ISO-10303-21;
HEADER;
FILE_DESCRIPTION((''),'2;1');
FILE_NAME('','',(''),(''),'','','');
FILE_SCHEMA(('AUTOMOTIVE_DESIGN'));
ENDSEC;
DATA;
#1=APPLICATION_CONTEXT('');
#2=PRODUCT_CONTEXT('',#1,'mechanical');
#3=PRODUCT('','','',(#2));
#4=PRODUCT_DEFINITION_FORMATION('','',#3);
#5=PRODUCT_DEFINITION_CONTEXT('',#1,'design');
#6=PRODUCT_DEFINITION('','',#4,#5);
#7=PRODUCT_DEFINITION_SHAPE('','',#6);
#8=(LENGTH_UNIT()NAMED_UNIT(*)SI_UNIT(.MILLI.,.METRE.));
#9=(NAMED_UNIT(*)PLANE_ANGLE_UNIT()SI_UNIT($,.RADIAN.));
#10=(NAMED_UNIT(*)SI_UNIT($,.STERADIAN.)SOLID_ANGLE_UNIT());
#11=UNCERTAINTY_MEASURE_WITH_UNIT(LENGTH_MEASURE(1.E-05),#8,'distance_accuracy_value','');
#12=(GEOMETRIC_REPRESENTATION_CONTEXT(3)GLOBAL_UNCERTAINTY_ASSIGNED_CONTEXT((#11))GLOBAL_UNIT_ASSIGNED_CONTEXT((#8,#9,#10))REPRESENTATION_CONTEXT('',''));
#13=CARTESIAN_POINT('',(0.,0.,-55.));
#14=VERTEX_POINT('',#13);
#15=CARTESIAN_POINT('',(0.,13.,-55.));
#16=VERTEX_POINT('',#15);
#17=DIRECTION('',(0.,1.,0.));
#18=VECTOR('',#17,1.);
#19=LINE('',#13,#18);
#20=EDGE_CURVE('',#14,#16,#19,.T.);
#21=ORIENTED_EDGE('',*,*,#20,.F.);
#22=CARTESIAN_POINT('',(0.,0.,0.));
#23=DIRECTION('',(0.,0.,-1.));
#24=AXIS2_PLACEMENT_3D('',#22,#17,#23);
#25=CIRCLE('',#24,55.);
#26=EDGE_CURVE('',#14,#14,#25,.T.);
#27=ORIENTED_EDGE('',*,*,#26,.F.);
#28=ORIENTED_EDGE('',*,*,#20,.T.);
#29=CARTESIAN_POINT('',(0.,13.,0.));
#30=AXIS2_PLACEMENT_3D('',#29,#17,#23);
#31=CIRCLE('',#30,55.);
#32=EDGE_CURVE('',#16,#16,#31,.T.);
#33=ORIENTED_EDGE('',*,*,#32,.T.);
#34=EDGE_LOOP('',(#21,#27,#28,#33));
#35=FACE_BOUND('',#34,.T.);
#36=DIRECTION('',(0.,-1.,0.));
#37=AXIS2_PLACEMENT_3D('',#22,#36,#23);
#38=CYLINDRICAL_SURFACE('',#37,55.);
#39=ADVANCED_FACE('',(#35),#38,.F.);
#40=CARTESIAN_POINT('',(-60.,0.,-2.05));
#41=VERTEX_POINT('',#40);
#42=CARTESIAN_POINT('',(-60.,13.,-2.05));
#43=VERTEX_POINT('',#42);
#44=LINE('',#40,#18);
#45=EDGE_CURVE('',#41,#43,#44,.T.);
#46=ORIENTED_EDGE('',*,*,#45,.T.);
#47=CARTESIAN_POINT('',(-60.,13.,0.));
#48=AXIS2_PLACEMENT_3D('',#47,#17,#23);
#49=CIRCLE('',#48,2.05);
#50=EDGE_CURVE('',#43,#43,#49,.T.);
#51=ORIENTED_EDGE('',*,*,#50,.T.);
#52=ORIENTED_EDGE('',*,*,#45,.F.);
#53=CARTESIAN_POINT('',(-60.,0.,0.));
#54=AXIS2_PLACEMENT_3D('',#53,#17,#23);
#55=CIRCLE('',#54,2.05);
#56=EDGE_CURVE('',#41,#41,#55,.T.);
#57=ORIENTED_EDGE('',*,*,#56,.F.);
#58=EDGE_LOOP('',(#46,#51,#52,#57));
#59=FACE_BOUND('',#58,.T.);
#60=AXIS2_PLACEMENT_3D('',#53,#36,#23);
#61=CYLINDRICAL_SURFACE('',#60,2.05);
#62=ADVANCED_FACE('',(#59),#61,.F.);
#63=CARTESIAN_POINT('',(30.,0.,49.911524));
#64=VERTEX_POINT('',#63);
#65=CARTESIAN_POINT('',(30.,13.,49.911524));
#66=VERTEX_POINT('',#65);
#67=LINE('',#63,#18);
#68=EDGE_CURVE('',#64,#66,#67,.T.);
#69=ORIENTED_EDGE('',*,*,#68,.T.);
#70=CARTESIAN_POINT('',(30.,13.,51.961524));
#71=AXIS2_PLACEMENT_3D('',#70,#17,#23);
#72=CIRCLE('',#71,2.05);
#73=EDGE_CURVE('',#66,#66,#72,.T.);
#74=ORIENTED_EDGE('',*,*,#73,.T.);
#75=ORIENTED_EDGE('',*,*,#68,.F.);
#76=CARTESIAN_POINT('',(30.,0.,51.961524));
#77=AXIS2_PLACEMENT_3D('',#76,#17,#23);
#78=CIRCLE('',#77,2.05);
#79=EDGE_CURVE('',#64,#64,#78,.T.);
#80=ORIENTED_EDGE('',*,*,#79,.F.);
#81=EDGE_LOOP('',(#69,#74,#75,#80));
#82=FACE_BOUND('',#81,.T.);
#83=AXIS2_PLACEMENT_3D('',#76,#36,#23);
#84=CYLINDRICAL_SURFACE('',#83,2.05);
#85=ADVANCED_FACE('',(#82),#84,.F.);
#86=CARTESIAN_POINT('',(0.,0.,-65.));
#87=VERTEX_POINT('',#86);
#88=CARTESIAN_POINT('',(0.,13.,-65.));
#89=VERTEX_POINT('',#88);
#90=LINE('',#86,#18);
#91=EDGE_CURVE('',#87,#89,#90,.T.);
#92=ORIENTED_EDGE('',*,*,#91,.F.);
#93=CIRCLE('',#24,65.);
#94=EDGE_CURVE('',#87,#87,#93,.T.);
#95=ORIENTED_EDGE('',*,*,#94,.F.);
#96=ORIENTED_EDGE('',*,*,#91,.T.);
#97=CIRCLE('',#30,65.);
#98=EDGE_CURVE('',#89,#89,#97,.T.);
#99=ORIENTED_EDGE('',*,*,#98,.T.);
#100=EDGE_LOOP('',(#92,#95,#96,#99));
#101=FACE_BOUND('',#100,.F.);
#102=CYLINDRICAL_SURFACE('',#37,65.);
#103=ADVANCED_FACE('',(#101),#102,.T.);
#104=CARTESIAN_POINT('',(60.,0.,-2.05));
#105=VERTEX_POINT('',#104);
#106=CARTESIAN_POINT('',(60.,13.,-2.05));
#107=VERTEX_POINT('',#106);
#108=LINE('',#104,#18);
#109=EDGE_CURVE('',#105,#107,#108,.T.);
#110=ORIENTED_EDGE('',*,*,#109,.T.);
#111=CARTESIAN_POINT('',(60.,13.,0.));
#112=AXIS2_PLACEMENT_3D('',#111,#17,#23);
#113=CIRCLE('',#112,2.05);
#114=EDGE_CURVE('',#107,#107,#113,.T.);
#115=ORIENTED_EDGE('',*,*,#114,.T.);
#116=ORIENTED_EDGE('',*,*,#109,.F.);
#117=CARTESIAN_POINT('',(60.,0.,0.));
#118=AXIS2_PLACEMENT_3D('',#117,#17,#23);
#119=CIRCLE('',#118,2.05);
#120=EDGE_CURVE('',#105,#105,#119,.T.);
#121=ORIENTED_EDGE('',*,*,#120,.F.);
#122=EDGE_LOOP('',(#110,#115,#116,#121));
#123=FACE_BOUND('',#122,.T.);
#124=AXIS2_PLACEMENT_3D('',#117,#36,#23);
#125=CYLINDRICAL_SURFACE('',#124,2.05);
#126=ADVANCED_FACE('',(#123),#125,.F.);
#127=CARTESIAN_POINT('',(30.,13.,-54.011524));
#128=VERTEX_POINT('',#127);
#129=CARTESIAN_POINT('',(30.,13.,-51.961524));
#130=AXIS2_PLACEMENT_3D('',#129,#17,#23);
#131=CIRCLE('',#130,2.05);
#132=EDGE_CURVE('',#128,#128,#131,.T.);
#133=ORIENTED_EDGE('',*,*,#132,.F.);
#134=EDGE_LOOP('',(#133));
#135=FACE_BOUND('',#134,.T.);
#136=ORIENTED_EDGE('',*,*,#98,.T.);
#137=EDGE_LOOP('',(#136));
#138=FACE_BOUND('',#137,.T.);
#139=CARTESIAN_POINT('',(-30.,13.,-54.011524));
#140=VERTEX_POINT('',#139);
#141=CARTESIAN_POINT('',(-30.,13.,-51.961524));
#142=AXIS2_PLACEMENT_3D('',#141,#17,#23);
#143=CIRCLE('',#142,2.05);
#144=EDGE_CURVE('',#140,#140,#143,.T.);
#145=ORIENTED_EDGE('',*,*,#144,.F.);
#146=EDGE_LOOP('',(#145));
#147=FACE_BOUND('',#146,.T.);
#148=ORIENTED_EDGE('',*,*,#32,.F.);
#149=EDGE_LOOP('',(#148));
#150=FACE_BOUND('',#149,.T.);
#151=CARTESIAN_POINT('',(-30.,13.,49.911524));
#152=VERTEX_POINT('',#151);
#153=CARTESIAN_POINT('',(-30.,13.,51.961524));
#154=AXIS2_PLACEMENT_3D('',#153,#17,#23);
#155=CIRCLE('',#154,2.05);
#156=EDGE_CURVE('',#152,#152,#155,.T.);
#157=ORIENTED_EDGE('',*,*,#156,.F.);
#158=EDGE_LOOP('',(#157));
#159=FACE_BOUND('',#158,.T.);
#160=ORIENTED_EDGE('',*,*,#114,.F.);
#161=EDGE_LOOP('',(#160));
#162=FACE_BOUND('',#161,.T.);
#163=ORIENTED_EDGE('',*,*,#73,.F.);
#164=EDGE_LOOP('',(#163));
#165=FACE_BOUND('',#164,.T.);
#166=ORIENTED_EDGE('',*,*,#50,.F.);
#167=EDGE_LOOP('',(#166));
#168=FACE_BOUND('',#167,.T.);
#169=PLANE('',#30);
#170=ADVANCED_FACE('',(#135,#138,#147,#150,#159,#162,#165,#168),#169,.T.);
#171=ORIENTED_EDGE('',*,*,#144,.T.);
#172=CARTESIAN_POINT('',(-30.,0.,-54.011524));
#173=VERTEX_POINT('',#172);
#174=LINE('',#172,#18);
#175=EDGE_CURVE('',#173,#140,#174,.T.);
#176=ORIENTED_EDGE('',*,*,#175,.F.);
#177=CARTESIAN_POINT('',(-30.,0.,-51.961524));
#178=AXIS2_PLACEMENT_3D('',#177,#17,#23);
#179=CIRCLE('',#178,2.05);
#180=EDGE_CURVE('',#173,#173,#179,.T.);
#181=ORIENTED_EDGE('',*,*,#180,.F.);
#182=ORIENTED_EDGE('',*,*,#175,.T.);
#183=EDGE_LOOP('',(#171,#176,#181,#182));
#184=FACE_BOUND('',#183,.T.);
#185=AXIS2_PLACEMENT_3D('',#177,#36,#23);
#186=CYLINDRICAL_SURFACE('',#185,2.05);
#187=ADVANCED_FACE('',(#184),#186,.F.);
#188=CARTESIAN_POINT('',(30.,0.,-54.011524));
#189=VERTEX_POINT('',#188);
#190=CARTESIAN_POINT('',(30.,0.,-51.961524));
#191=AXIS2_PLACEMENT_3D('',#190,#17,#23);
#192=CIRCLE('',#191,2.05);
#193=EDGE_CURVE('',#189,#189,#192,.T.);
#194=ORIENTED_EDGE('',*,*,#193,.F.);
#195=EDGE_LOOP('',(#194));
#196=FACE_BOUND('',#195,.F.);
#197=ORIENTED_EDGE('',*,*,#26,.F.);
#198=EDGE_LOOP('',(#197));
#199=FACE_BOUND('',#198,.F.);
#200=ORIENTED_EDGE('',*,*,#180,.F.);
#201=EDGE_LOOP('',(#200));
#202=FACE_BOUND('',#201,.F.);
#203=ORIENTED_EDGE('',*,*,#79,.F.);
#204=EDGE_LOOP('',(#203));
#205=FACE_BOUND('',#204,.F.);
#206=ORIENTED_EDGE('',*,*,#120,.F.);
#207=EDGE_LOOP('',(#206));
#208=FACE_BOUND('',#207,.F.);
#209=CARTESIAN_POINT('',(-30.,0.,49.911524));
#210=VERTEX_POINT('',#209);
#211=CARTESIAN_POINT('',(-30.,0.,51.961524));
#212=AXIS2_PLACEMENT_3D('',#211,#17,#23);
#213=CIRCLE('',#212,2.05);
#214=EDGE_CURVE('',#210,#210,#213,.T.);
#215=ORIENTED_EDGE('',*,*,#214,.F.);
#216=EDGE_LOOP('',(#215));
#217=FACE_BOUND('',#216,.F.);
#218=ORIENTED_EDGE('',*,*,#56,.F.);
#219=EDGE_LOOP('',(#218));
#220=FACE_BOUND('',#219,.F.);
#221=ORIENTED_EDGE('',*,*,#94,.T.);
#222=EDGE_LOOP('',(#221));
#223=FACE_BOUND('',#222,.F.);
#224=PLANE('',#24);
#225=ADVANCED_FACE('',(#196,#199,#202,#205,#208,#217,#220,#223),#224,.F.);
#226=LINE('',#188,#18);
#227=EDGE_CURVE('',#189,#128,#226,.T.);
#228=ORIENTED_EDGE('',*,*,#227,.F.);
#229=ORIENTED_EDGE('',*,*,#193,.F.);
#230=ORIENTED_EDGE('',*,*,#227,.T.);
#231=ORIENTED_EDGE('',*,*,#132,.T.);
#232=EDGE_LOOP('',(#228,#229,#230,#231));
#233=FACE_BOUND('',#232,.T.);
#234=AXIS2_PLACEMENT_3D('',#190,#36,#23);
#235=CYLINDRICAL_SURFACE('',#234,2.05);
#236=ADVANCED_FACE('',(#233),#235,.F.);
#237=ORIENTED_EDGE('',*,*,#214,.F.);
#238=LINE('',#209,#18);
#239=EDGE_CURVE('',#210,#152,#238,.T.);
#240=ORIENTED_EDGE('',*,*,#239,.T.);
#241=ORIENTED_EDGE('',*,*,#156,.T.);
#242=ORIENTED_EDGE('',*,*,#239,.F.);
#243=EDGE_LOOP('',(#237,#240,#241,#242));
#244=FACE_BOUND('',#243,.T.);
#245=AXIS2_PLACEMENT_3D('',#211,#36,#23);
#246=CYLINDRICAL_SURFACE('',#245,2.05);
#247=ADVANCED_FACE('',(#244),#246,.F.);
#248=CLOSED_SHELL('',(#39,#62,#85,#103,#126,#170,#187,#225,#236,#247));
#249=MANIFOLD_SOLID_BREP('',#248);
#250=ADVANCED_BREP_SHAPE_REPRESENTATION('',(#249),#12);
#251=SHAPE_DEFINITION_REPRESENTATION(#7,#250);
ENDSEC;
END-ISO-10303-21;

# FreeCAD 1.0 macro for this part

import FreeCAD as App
import Part
import Sketcher
from FreeCAD import Vector

doc = App.newDocument("Part")
body = doc.addObject("PartDesign::Body", "Body")

# Sketch on XZ plane
sketch1 = body.newObject("Sketcher::SketchObject", "Sketch")
sketch1.AttachmentSupport = (doc.getObject("XZ_Plane"), [""])
sketch1.MapMode = "FlatFace"
sketch1.addGeometry([
    Part.Circle(Vector(0, 0, 0), Vector(0, 0, 1), 65),  # 0
    Part.Circle(Vector(30, 52, 0), Vector(0, 0, 1), 2),  # 1
    Part.Circle(Vector(60, 0, 0), Vector(0, 0, 1), 2),  # 2
    Part.Circle(Vector(30, -52, 0), Vector(0, 0, 1), 2),  # 3
    Part.Circle(Vector(-30, 52, 0), Vector(0, 0, 1), 2),  # 4
    Part.Circle(Vector(-60, 0, 0), Vector(0, 0, 1), 2),  # 5
    Part.Circle(Vector(0, 0, 0), Vector(0, 0, 1), 55),  # 6
    Part.Circle(Vector(-30, -52, 0), Vector(0, 0, 1), 2),  # 7
], False)
sketch1.addConstraint([
    Sketcher.Constraint("Coincident", 0, 3, -1, 1),
    Sketcher.Constraint("Coincident", 6, 3, -1, 1),
    Sketcher.Constraint("Equal", 1, 2),
    Sketcher.Constraint("Equal", 2, 3),
    Sketcher.Constraint("Equal", 3, 4),
    Sketcher.Constraint("Equal", 4, 5),
    Sketcher.Constraint("Equal", 5, 7),
    Sketcher.Constraint("Symmetric", 3, 3, 4, 3, -1, 1),
    Sketcher.Constraint("Symmetric", 2, 3, 5, 3, -1, 1),
    Sketcher.Constraint("Symmetric", 1, 3, 7, 3, -1, 1),
    Sketcher.Constraint("Symmetric", 1, 3, 4, 3, -2),
    Sketcher.Constraint("PointOnObject", 2, 3, -1),
    Sketcher.Constraint("Diameter", 0, 130.0),
    Sketcher.Constraint("Diameter", 6, 110.0),
    Sketcher.Constraint("Diameter", 1, 4.1),
    Sketcher.Constraint("DistanceX", -1, 1, 1, 3, 30.0),
    Sketcher.Constraint("DistanceX", -1, 1, 2, 3, 60.0),
    Sketcher.Constraint("DistanceY", 3, 3, 1, 3, 103.923048),
])
pad1 = body.newObject("PartDesign::Pad", "Pad")
pad1.Profile = sketch1
pad1.Length = 13
pad1.Reversed = True

doc.recompute()
